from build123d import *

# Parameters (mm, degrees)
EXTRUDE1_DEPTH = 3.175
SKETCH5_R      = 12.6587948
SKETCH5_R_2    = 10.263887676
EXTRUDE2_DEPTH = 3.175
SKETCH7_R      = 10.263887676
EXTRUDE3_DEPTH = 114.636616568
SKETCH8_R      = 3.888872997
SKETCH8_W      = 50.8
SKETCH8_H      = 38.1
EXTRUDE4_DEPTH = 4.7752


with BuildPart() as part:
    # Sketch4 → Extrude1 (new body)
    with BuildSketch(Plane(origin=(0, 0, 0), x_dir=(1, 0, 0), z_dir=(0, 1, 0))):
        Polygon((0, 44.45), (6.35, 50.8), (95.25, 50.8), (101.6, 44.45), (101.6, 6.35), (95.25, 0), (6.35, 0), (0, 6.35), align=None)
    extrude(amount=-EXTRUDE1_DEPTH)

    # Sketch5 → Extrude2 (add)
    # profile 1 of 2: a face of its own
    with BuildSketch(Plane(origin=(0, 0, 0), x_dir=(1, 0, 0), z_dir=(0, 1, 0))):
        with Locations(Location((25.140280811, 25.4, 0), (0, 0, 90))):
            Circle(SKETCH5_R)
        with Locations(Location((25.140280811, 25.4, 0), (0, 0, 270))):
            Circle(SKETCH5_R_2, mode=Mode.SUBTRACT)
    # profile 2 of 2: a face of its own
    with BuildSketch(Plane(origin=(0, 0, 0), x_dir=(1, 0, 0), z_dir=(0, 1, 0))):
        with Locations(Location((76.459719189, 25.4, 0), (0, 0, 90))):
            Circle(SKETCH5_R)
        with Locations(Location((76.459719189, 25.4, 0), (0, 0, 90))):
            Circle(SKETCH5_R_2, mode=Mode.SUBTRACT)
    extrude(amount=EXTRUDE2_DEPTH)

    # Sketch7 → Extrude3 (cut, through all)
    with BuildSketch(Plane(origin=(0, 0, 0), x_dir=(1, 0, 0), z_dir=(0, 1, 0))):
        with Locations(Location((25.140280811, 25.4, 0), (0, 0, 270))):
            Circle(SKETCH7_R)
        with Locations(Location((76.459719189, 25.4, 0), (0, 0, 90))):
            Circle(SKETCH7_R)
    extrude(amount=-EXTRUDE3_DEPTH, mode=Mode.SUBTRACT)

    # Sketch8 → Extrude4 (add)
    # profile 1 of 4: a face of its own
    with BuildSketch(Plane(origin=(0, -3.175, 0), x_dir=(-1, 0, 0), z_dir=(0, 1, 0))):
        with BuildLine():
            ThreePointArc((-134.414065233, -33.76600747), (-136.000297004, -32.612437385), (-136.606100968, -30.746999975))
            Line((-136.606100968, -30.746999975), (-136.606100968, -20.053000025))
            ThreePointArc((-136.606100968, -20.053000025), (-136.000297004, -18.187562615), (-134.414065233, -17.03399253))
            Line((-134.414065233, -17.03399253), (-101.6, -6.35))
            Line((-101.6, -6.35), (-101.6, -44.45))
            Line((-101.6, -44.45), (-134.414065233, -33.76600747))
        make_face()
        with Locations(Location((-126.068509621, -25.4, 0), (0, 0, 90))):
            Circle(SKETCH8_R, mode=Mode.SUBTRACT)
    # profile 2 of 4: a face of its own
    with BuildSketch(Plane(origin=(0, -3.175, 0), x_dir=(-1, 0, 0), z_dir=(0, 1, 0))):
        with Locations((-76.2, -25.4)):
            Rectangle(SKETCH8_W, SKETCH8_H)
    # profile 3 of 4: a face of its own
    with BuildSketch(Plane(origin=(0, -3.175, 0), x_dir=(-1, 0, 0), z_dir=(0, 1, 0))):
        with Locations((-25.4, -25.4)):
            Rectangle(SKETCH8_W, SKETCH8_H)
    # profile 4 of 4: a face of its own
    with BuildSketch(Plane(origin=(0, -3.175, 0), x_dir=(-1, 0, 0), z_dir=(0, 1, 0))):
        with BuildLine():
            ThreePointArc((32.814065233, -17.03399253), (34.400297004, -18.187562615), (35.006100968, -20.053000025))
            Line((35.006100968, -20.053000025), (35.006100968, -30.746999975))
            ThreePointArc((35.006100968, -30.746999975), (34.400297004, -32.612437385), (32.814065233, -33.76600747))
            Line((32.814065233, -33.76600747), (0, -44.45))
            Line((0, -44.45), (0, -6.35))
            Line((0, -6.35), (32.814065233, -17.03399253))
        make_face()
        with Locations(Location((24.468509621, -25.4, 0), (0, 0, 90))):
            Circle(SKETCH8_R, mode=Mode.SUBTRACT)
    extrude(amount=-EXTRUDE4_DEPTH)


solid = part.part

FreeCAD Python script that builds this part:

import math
import FreeCAD as App
import Part
import Sketcher

V = App.Vector
Q = App.Units.Quantity

doc = App.newDocument("Part")
body = doc.addObject("PartDesign::Body", "Body")

sketch1 = body.newObject("Sketcher::SketchObject", "Sketch")
sketch1.AttachmentSupport = (doc.getObject("XZ_Plane"), [""])
sketch1.MapMode = "FlatFace"
sketch1.addGeometry([
    Part.LineSegment(V(6.35, -50.8, 0), V(0, -44.45, 0)),
    Part.LineSegment(V(0, -44.45, 0), V(0, -6.35, 0)),
    Part.LineSegment(V(0, -6.35, 0), V(6.35, 0, 0)),
    Part.LineSegment(V(6.35, 0, 0), V(95.25, 0, 0)),
    Part.LineSegment(V(95.25, 0, 0), V(101.6, -6.35, 0)),
    Part.LineSegment(V(101.6, -6.35, 0), V(101.6, -44.45, 0)),
    Part.LineSegment(V(101.6, -44.45, 0), V(95.25, -50.8, 0)),
    Part.LineSegment(V(95.25, -50.8, 0), V(6.35, -50.8, 0)),
], False)
sketch1.addConstraint([
    Sketcher.Constraint("Coincident", 0, 2, 1, 1),
    Sketcher.Constraint("Coincident", 1, 2, 2, 1),
    Sketcher.Constraint("Coincident", 2, 2, 3, 1),
    Sketcher.Constraint("Coincident", 3, 2, 4, 1),
    Sketcher.Constraint("Coincident", 4, 2, 5, 1),
    Sketcher.Constraint("Coincident", 5, 2, 6, 1),
    Sketcher.Constraint("Coincident", 6, 2, 7, 1),
    Sketcher.Constraint("Coincident", 7, 2, 0, 1),
    Sketcher.Constraint("Vertical", 1),
    Sketcher.Constraint("Horizontal", 3),
    Sketcher.Constraint("Vertical", 5),
    Sketcher.Constraint("Horizontal", 7),
    Sketcher.Constraint("PointOnObject", 0, 2, -2),
    Sketcher.Constraint("PointOnObject", 2, 2, -1),
    Sketcher.Constraint("Perpendicular", 0, 2),
    Sketcher.Constraint("Perpendicular", 2, 4),
    Sketcher.Constraint("Perpendicular", 4, 6),
    Sketcher.Constraint("Horizontal", 1, 2, 4, 2),
    Sketcher.Constraint("Horizontal", 0, 2, 5, 2),
    Sketcher.Constraint("Vertical", 3, 2, 6, 2),
    Sketcher.Constraint("Vertical", 2, 2, 7, 2),
    Sketcher.Constraint("DistanceX", 3, 1, 3, 2, Q("3.5 in")),
    Sketcher.Constraint("DistanceY", 1, 1, 1, 2, Q("1.5 in")),
    Sketcher.Constraint("DistanceX", -1, 1, 4, 2, Q("4 in")),
])
pad1 = body.newObject("PartDesign::Pad", "Pad")
pad1.Profile = sketch1
pad1.Length = Q("0.125 in")

sketch2 = body.newObject("Sketcher::SketchObject", "Sketch001")
sketch2.AttachmentSupport = (doc.getObject("XZ_Plane"), [""])
sketch2.MapMode = "FlatFace"
sketch2.addGeometry([
    Part.Circle(V(25.140281, -25.4, 0), V(0, 0, 1), 12.658795),
    Part.Circle(V(25.140281, -25.4, 0), V(0, 0, 1), 10.263888),
    Part.Circle(V(76.459719, -25.4, 0), V(0, 0, 1), 12.658795),
    Part.Circle(V(76.459719, -25.4, 0), V(0, 0, 1), 10.263888),
], False)
sketch2.addConstraint([
    Sketcher.Constraint("Coincident", 1, 3, 0, 3),
    Sketcher.Constraint("Coincident", 3, 3, 2, 3),
    Sketcher.Constraint("Equal", 0, 2),
    Sketcher.Constraint("Equal", 1, 3),
    Sketcher.Constraint("Horizontal", 1, 3, 2, 3),
    Sketcher.Constraint("DistanceY", 0, 3, -1, 1, Q("1 in")),
    Sketcher.Constraint("Diameter", 0, Q("25.31759 mm")),
    Sketcher.Constraint("Diameter", 1, Q("20.527775 mm")),
    Sketcher.Constraint("DistanceX", -1, 1, 0, 3, Q("25.140281 mm")),
    Sketcher.Constraint("DistanceX", -1, 1, 2, 3, Q("76.459719 mm")),
])
pad2 = body.newObject("PartDesign::Pad", "Pad001")
pad2.Profile = sketch2
pad2.Length = Q("0.125 in")
pad2.Reversed = True

sketch3 = body.newObject("Sketcher::SketchObject", "Sketch002")
sketch3.AttachmentSupport = (doc.getObject("XZ_Plane"), [""])
sketch3.MapMode = "FlatFace"
sketch3.addGeometry([
    Part.Circle(V(25.140281, -25.4, 0), V(0, 0, 1), 10.263888),
    Part.Circle(V(76.459719, -25.4, 0), V(0, 0, 1), 10.263888),
], False)
sketch3.addConstraint([
    Sketcher.Constraint("Equal", 0, 1),
    Sketcher.Constraint("Horizontal", 0, 3, 1, 3),
    Sketcher.Constraint("DistanceY", 0, 3, -1, 1, Q("1 in")),
    Sketcher.Constraint("Diameter", 0, Q("20.527775 mm")),
    Sketcher.Constraint("DistanceX", -1, 1, 0, 3, Q("25.140281 mm")),
    Sketcher.Constraint("DistanceX", -1, 1, 1, 3, Q("76.459719 mm")),
])
pocket1 = body.newObject("PartDesign::Pocket", "Pocket")
pocket1.Profile = sketch3
pocket1.Type = "ThroughAll"
pocket1.Reversed = True

sketch4 = body.newObject("Sketcher::SketchObject", "Sketch003")
sketch4.AttachmentSupport = (doc.getObject("XZ_Plane"), [""])
sketch4.MapMode = "FlatFace"
sketch4.AttachmentOffset = App.Placement(V(0, 0, 0.125 * 25.4), App.Rotation())
sketch4.addGeometry([
    Part.ArcOfCircle(Part.Circle(V(133.431101, -30.747, 0), V(0, 0, 1), 3.175), math.radians(-71.965172), math.radians(0)),
    Part.LineSegment(V(134.414065, -33.766007, 0), V(101.6, -44.45, 0)),
    Part.LineSegment(V(101.6, -44.45, 0), V(0, -44.45, 0)),
    Part.LineSegment(V(0, -44.45, 0), V(-32.814065, -33.766007, 0)),
    Part.ArcOfCircle(Part.Circle(V(-31.831101, -30.747, 0), V(0, 0, 1), 3.175), math.radians(180), math.radians(251.965172)),
    Part.LineSegment(V(-35.006101, -30.747, 0), V(-35.006101, -20.053, 0)),
    Part.ArcOfCircle(Part.Circle(V(-31.831101, -20.053, 0), V(0, 0, 1), 3.175), math.radians(108.034828), math.radians(180)),
    Part.LineSegment(V(-32.814065, -17.033993, 0), V(0, -6.35, 0)),
    Part.LineSegment(V(0, -6.35, 0), V(101.6, -6.35, 0)),
    Part.LineSegment(V(101.6, -6.35, 0), V(134.414065, -17.033993, 0)),
    Part.ArcOfCircle(Part.Circle(V(133.431101, -20.053, 0), V(0, 0, 1), 3.175), math.radians(0), math.radians(71.965172)),
    Part.LineSegment(V(136.606101, -20.053, 0), V(136.606101, -30.747, 0)),
    Part.Circle(V(126.06851, -25.4, 0), V(0, 0, 1), 3.888873),
    Part.Circle(V(-24.46851, -25.4, 0), V(0, 0, 1), 3.888873),
], False)
sketch4.addConstraint([
    Sketcher.Constraint("Tangent", 0, 1, 1, 1),
    Sketcher.Constraint("Coincident", 1, 2, 2, 1),
    Sketcher.Constraint("Coincident", 2, 2, 3, 1),
    Sketcher.Constraint("Tangent", 3, 2, 4, 2),
    Sketcher.Constraint("Tangent", 4, 1, 5, 1),
    Sketcher.Constraint("Tangent", 5, 2, 6, 2),
    Sketcher.Constraint("Tangent", 6, 1, 7, 1),
    Sketcher.Constraint("Coincident", 7, 2, 8, 1),
    Sketcher.Constraint("Coincident", 8, 2, 9, 1),
    Sketcher.Constraint("Tangent", 9, 2, 10, 2),
    Sketcher.Constraint("Tangent", 10, 1, 11, 1),
    Sketcher.Constraint("Tangent", 11, 2, 0, 2),
    Sketcher.Constraint("Horizontal", 2),
    Sketcher.Constraint("Vertical", 5),
    Sketcher.Constraint("Horizontal", 8),
    Sketcher.Constraint("Vertical", 11),
    Sketcher.Constraint("Equal", 0, 4),
    Sketcher.Constraint("Equal", 4, 6),
    Sketcher.Constraint("Equal", 6, 10),
    Sketcher.Constraint("Equal", 12, 13),
    Sketcher.Constraint("PointOnObject", 2, 2, -2),
    Sketcher.Constraint("PointOnObject", 7, 2, -2),
    Sketcher.Constraint("Parallel", 1, 7),
    Sketcher.Constraint("Parallel", 3, 9),
    Sketcher.Constraint("Horizontal", 0, 3, 4, 3),
    Sketcher.Constraint("Horizontal", 6, 3, 10, 3),
    Sketcher.Constraint("Horizontal", 12, 3, 13, 3),
    Sketcher.Constraint("Horizontal", 0, 1, 3, 2),
    Sketcher.Constraint("DistanceX", 2, 2, 2, 1, Q("4 in")),
    Sketcher.Constraint("DistanceY", 12, 3, -1, 1, Q("1 in")),
    Sketcher.Constraint("Radius", 0, Q("0.125 in")),
    Sketcher.Constraint("DistanceY", 2, 2, 7, 2, Q("1.5 in")),
    Sketcher.Constraint("DistanceY", 1, 2, -1, 1, Q("1.75 in")),
    Sketcher.Constraint("Diameter", 12, Q("7.777746 mm")),
    Sketcher.Constraint("DistanceY", 5, 1, 5, 2, Q("10.694 mm")),
    Sketcher.Constraint("DistanceX", -1, 1, 0, 3, Q("133.431101 mm")),
    Sketcher.Constraint("DistanceX", -1, 1, 12, 3, Q("126.06851 mm")),
    Sketcher.Constraint("DistanceX", 13, 3, -1, 1, Q("24.46851 mm")),
])
pad3 = body.newObject("PartDesign::Pad", "Pad002")
pad3.Profile = sketch4
pad3.Length = Q("0.188 in")

doc.recompute()
